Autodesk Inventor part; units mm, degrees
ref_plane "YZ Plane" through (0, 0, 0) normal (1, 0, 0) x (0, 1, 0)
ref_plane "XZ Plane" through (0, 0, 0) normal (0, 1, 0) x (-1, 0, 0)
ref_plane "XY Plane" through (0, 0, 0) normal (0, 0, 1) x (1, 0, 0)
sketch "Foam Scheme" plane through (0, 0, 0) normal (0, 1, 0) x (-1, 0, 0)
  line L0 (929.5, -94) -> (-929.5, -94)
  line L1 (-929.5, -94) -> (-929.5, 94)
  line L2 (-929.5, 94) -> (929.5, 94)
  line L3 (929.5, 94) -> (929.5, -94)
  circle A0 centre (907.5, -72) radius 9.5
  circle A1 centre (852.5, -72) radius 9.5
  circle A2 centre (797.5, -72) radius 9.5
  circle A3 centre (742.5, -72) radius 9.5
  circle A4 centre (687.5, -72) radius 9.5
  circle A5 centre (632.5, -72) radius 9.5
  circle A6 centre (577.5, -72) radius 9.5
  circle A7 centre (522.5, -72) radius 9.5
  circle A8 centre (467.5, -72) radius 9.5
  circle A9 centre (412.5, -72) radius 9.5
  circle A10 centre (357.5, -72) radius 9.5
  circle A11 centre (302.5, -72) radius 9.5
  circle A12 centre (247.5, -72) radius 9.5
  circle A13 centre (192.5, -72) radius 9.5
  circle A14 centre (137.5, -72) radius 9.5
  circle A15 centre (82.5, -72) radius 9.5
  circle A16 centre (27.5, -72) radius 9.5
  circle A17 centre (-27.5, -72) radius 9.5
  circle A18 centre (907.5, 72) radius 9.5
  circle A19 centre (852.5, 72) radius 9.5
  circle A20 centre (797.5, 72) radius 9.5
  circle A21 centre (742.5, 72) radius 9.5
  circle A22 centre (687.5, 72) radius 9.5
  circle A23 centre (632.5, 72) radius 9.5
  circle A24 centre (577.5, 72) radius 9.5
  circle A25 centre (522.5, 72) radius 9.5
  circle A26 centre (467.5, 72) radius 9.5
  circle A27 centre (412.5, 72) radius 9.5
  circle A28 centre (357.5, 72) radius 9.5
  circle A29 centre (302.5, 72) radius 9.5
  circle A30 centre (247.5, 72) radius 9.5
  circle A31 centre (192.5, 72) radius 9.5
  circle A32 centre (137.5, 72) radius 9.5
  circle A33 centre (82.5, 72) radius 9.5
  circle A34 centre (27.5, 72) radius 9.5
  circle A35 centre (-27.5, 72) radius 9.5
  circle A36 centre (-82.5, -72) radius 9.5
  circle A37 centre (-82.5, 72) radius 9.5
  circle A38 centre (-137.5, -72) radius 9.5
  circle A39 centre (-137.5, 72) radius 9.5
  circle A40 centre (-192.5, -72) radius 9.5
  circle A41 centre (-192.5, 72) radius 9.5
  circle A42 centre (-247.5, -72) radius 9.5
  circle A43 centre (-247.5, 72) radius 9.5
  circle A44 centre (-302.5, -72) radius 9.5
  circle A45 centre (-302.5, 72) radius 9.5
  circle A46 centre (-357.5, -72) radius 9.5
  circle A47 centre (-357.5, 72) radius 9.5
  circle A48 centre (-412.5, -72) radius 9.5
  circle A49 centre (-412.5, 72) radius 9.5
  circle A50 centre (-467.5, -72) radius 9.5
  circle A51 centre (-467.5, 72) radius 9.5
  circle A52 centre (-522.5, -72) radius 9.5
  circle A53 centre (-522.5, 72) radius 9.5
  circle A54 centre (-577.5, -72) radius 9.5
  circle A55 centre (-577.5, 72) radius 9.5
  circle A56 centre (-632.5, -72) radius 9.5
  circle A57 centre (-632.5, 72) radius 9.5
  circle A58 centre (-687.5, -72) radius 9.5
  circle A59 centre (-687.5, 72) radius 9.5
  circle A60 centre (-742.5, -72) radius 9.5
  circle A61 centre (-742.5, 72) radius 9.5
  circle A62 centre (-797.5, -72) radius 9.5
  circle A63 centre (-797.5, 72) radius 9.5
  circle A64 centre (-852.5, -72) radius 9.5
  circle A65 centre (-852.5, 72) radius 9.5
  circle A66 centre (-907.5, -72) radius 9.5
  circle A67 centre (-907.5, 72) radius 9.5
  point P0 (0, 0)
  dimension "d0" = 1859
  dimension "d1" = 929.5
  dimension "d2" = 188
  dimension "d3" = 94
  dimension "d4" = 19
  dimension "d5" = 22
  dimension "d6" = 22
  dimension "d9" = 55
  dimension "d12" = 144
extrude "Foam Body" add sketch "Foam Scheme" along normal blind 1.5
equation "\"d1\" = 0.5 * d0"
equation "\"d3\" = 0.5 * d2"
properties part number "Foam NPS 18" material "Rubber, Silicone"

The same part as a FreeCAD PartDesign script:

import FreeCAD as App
import Part
import Sketcher
Q = App.Units.Quantity

doc = App.newDocument("Part")
body = doc.addObject("PartDesign::Body", "Body")

# Sketch on XZ plane
sketch1 = body.newObject("Sketcher::SketchObject", "Sketch")
sketch1.AttachmentSupport = (doc.getObject("XZ_Plane"), [""])
sketch1.MapMode = "FlatFace"
sketch1.addGeometry([
    Part.LineSegment(App.Vector(929.5, -94, 0), App.Vector(-929.5, -94, 0)),  # 0
    Part.LineSegment(App.Vector(-929.5, -94, 0), App.Vector(-929.5, 94, 0)),  # 1
    Part.LineSegment(App.Vector(-929.5, 94, 0), App.Vector(929.5, 94, 0)),  # 2
    Part.LineSegment(App.Vector(929.5, 94, 0), App.Vector(929.5, -94, 0)),  # 3
    Part.Circle(App.Vector(907.5, -72, 0), App.Vector(0, 0, 1), 9.5),  # 4
    Part.Circle(App.Vector(852.5, -72, 0), App.Vector(0, 0, 1), 9.5),  # 5
    Part.Circle(App.Vector(797.5, -72, 0), App.Vector(0, 0, 1), 9.5),  # 6
    Part.Circle(App.Vector(742.5, -72, 0), App.Vector(0, 0, 1), 9.5),  # 7
    Part.Circle(App.Vector(687.5, -72, 0), App.Vector(0, 0, 1), 9.5),  # 8
    Part.Circle(App.Vector(632.5, -72, 0), App.Vector(0, 0, 1), 9.5),  # 9
    Part.Circle(App.Vector(577.5, -72, 0), App.Vector(0, 0, 1), 9.5),  # 10
    Part.Circle(App.Vector(522.5, -72, 0), App.Vector(0, 0, 1), 9.5),  # 11
    Part.Circle(App.Vector(467.5, -72, 0), App.Vector(0, 0, 1), 9.5),  # 12
    Part.Circle(App.Vector(412.5, -72, 0), App.Vector(0, 0, 1), 9.5),  # 13
    Part.Circle(App.Vector(357.5, -72, 0), App.Vector(0, 0, 1), 9.5),  # 14
    Part.Circle(App.Vector(302.5, -72, 0), App.Vector(0, 0, 1), 9.5),  # 15
    Part.Circle(App.Vector(247.5, -72, 0), App.Vector(0, 0, 1), 9.5),  # 16
    Part.Circle(App.Vector(192.5, -72, 0), App.Vector(0, 0, 1), 9.5),  # 17
    Part.Circle(App.Vector(137.5, -72, 0), App.Vector(0, 0, 1), 9.5),  # 18
    Part.Circle(App.Vector(82.5, -72, 0), App.Vector(0, 0, 1), 9.5),  # 19
    Part.Circle(App.Vector(27.5, -72, 0), App.Vector(0, 0, 1), 9.5),  # 20
    Part.Circle(App.Vector(-27.5, -72, 0), App.Vector(0, 0, 1), 9.5),  # 21
    Part.Circle(App.Vector(-82.5, -72, 0), App.Vector(0, 0, 1), 9.5),  # 22
    Part.Circle(App.Vector(-137.5, -72, 0), App.Vector(0, 0, 1), 9.5),  # 23
    Part.Circle(App.Vector(-192.5, -72, 0), App.Vector(0, 0, 1), 9.5),  # 24
    Part.Circle(App.Vector(-247.5, -72, 0), App.Vector(0, 0, 1), 9.5),  # 25
    Part.Circle(App.Vector(-302.5, -72, 0), App.Vector(0, 0, 1), 9.5),  # 26
    Part.Circle(App.Vector(-357.5, -72, 0), App.Vector(0, 0, 1), 9.5),  # 27
    Part.Circle(App.Vector(-412.5, -72, 0), App.Vector(0, 0, 1), 9.5),  # 28
    Part.Circle(App.Vector(-467.5, -72, 0), App.Vector(0, 0, 1), 9.5),  # 29
    Part.Circle(App.Vector(-522.5, -72, 0), App.Vector(0, 0, 1), 9.5),  # 30
    Part.Circle(App.Vector(-577.5, -72, 0), App.Vector(0, 0, 1), 9.5),  # 31
    Part.Circle(App.Vector(-632.5, -72, 0), App.Vector(0, 0, 1), 9.5),  # 32
    Part.Circle(App.Vector(-687.5, -72, 0), App.Vector(0, 0, 1), 9.5),  # 33
    Part.Circle(App.Vector(-742.5, -72, 0), App.Vector(0, 0, 1), 9.5),  # 34
    Part.Circle(App.Vector(-797.5, -72, 0), App.Vector(0, 0, 1), 9.5),  # 35
    Part.Circle(App.Vector(-852.5, -72, 0), App.Vector(0, 0, 1), 9.5),  # 36
    Part.Circle(App.Vector(-907.5, -72, 0), App.Vector(0, 0, 1), 9.5),  # 37
    Part.Circle(App.Vector(907.5, 72, 0), App.Vector(0, 0, 1), 9.5),  # 38
    Part.Circle(App.Vector(852.5, 72, 0), App.Vector(0, 0, 1), 9.5),  # 39
    Part.Circle(App.Vector(797.5, 72, 0), App.Vector(0, 0, 1), 9.5),  # 40
    Part.Circle(App.Vector(742.5, 72, 0), App.Vector(0, 0, 1), 9.5),  # 41
    Part.Circle(App.Vector(687.5, 72, 0), App.Vector(0, 0, 1), 9.5),  # 42
    Part.Circle(App.Vector(632.5, 72, 0), App.Vector(0, 0, 1), 9.5),  # 43
    Part.Circle(App.Vector(577.5, 72, 0), App.Vector(0, 0, 1), 9.5),  # 44
    Part.Circle(App.Vector(522.5, 72, 0), App.Vector(0, 0, 1), 9.5),  # 45
    Part.Circle(App.Vector(467.5, 72, 0), App.Vector(0, 0, 1), 9.5),  # 46
    Part.Circle(App.Vector(412.5, 72, 0), App.Vector(0, 0, 1), 9.5),  # 47
    Part.Circle(App.Vector(357.5, 72, 0), App.Vector(0, 0, 1), 9.5),  # 48
    Part.Circle(App.Vector(302.5, 72, 0), App.Vector(0, 0, 1), 9.5),  # 49
    Part.Circle(App.Vector(247.5, 72, 0), App.Vector(0, 0, 1), 9.5),  # 50
    Part.Circle(App.Vector(192.5, 72, 0), App.Vector(0, 0, 1), 9.5),  # 51
    Part.Circle(App.Vector(137.5, 72, 0), App.Vector(0, 0, 1), 9.5),  # 52
    Part.Circle(App.Vector(82.5, 72, 0), App.Vector(0, 0, 1), 9.5),  # 53
    Part.Circle(App.Vector(27.5, 72, 0), App.Vector(0, 0, 1), 9.5),  # 54
    Part.Circle(App.Vector(-27.5, 72, 0), App.Vector(0, 0, 1), 9.5),  # 55
    Part.Circle(App.Vector(-82.5, 72, 0), App.Vector(0, 0, 1), 9.5),  # 56
    Part.Circle(App.Vector(-137.5, 72, 0), App.Vector(0, 0, 1), 9.5),  # 57
    Part.Circle(App.Vector(-192.5, 72, 0), App.Vector(0, 0, 1), 9.5),  # 58
    Part.Circle(App.Vector(-247.5, 72, 0), App.Vector(0, 0, 1), 9.5),  # 59
    Part.Circle(App.Vector(-302.5, 72, 0), App.Vector(0, 0, 1), 9.5),  # 60
    Part.Circle(App.Vector(-357.5, 72, 0), App.Vector(0, 0, 1), 9.5),  # 61
    Part.Circle(App.Vector(-412.5, 72, 0), App.Vector(0, 0, 1), 9.5),  # 62
    Part.Circle(App.Vector(-467.5, 72, 0), App.Vector(0, 0, 1), 9.5),  # 63
    Part.Circle(App.Vector(-522.5, 72, 0), App.Vector(0, 0, 1), 9.5),  # 64
    Part.Circle(App.Vector(-577.5, 72, 0), App.Vector(0, 0, 1), 9.5),  # 65
    Part.Circle(App.Vector(-632.5, 72, 0), App.Vector(0, 0, 1), 9.5),  # 66
    Part.Circle(App.Vector(-687.5, 72, 0), App.Vector(0, 0, 1), 9.5),  # 67
    Part.Circle(App.Vector(-742.5, 72, 0), App.Vector(0, 0, 1), 9.5),  # 68
    Part.Circle(App.Vector(-797.5, 72, 0), App.Vector(0, 0, 1), 9.5),  # 69
    Part.Circle(App.Vector(-852.5, 72, 0), App.Vector(0, 0, 1), 9.5),  # 70
    Part.Circle(App.Vector(-907.5, 72, 0), App.Vector(0, 0, 1), 9.5),  # 71
], False)
sketch1.addConstraint([
    Sketcher.Constraint("Coincident", 0, 2, 1, 1),
    Sketcher.Constraint("Coincident", 1, 2, 2, 1),
    Sketcher.Constraint("Coincident", 2, 2, 3, 1),
    Sketcher.Constraint("Coincident", 3, 2, 0, 1),
    Sketcher.Constraint("Horizontal", 0),
    Sketcher.Constraint("Vertical", 1),
    Sketcher.Constraint("Horizontal", 2),
    Sketcher.Constraint("Vertical", 3),
    Sketcher.Constraint("Equal", 4, 5),
    Sketcher.Constraint("Equal", 5, 6),
    Sketcher.Constraint("Equal", 6, 7),
    Sketcher.Constraint("Equal", 7, 8),
    Sketcher.Constraint("Equal", 8, 9),
    Sketcher.Constraint("Equal", 9, 10),
    Sketcher.Constraint("Equal", 10, 11),
    Sketcher.Constraint("Equal", 11, 12),
    Sketcher.Constraint("Equal", 12, 13),
    Sketcher.Constraint("Equal", 13, 14),
    Sketcher.Constraint("Equal", 14, 15),
    Sketcher.Constraint("Equal", 15, 16),
    Sketcher.Constraint("Equal", 16, 17),
    Sketcher.Constraint("Equal", 17, 18),
    Sketcher.Constraint("Equal", 18, 19),
    Sketcher.Constraint("Equal", 19, 20),
    Sketcher.Constraint("Equal", 20, 21),
    Sketcher.Constraint("Equal", 21, 22),
    Sketcher.Constraint("Equal", 22, 23),
    Sketcher.Constraint("Equal", 23, 24),
    Sketcher.Constraint("Equal", 24, 25),
    Sketcher.Constraint("Equal", 25, 26),
    Sketcher.Constraint("Equal", 26, 27),
    Sketcher.Constraint("Equal", 27, 28),
    Sketcher.Constraint("Equal", 28, 29),
    Sketcher.Constraint("Equal", 29, 30),
    Sketcher.Constraint("Equal", 30, 31),
    Sketcher.Constraint("Equal", 31, 32),
    Sketcher.Constraint("Equal", 32, 33),
    Sketcher.Constraint("Equal", 33, 34),
    Sketcher.Constraint("Equal", 34, 35),
    Sketcher.Constraint("Equal", 35, 36),
    Sketcher.Constraint("Equal", 36, 37),
    Sketcher.Constraint("Equal", 37, 38),
    Sketcher.Constraint("Equal", 38, 39),
    Sketcher.Constraint("Equal", 39, 40),
    Sketcher.Constraint("Equal", 40, 41),
    Sketcher.Constraint("Equal", 41, 42),
    Sketcher.Constraint("Equal", 42, 43),
    Sketcher.Constraint("Equal", 43, 44),
    Sketcher.Constraint("Equal", 44, 45),
    Sketcher.Constraint("Equal", 45, 46),
    Sketcher.Constraint("Equal", 46, 47),
    Sketcher.Constraint("Equal", 47, 48),
    Sketcher.Constraint("Equal", 48, 49),
    Sketcher.Constraint("Equal", 49, 50),
    Sketcher.Constraint("Equal", 50, 51),
    Sketcher.Constraint("Equal", 51, 52),
    Sketcher.Constraint("Equal", 52, 53),
    Sketcher.Constraint("Equal", 53, 54),
    Sketcher.Constraint("Equal", 54, 55),
    Sketcher.Constraint("Equal", 55, 56),
    Sketcher.Constraint("Equal", 56, 57),
    Sketcher.Constraint("Equal", 57, 58),
    Sketcher.Constraint("Equal", 58, 59),
    Sketcher.Constraint("Equal", 59, 60),
    Sketcher.Constraint("Equal", 60, 61),
    Sketcher.Constraint("Equal", 61, 62),
    Sketcher.Constraint("Equal", 62, 63),
    Sketcher.Constraint("Equal", 63, 64),
    Sketcher.Constraint("Equal", 64, 65),
    Sketcher.Constraint("Equal", 65, 66),
    Sketcher.Constraint("Equal", 66, 67),
    Sketcher.Constraint("Equal", 67, 68),
    Sketcher.Constraint("Equal", 68, 69),
    Sketcher.Constraint("Equal", 69, 70),
    Sketcher.Constraint("Equal", 70, 71),
    Sketcher.Constraint("Symmetric", 37, 3, 38, 3, -1, 1),
    Sketcher.Constraint("Symmetric", 36, 3, 39, 3, -1, 1),
    Sketcher.Constraint("Symmetric", 35, 3, 40, 3, -1, 1),
    Sketcher.Constraint("Symmetric", 34, 3, 41, 3, -1, 1),
    Sketcher.Constraint("Symmetric", 33, 3, 42, 3, -1, 1),
    Sketcher.Constraint("Symmetric", 32, 3, 43, 3, -1, 1),
    Sketcher.Constraint("Symmetric", 31, 3, 44, 3, -1, 1),
    Sketcher.Constraint("Symmetric", 30, 3, 45, 3, -1, 1),
    Sketcher.Constraint("Symmetric", 29, 3, 46, 3, -1, 1),
    Sketcher.Constraint("Symmetric", 28, 3, 47, 3, -1, 1),
    Sketcher.Constraint("Symmetric", 27, 3, 48, 3, -1, 1),
    Sketcher.Constraint("Symmetric", 26, 3, 49, 3, -1, 1),
    Sketcher.Constraint("Symmetric", 25, 3, 50, 3, -1, 1),
    Sketcher.Constraint("Symmetric", 24, 3, 51, 3, -1, 1),
    Sketcher.Constraint("Symmetric", 23, 3, 52, 3, -1, 1),
    Sketcher.Constraint("Symmetric", 22, 3, 53, 3, -1, 1),
    Sketcher.Constraint("Symmetric", 21, 3, 54, 3, -1, 1),
    Sketcher.Constraint("Symmetric", 20, 3, 55, 3, -1, 1),
    Sketcher.Constraint("Symmetric", 19, 3, 56, 3, -1, 1),
    Sketcher.Constraint("Symmetric", 18, 3, 57, 3, -1, 1),
    Sketcher.Constraint("Symmetric", 17, 3, 58, 3, -1, 1),
    Sketcher.Constraint("Symmetric", 16, 3, 59, 3, -1, 1),
    Sketcher.Constraint("Symmetric", 15, 3, 60, 3, -1, 1),
    Sketcher.Constraint("Symmetric", 14, 3, 61, 3, -1, 1),
    Sketcher.Constraint("Symmetric", 13, 3, 62, 3, -1, 1),
    Sketcher.Constraint("Symmetric", 12, 3, 63, 3, -1, 1),
    Sketcher.Constraint("Symmetric", 11, 3, 64, 3, -1, 1),
    Sketcher.Constraint("Symmetric", 10, 3, 65, 3, -1, 1),
    Sketcher.Constraint("Symmetric", 9, 3, 66, 3, -1, 1),
    Sketcher.Constraint("Symmetric", 8, 3, 67, 3, -1, 1),
    Sketcher.Constraint("Symmetric", 7, 3, 68, 3, -1, 1),
    Sketcher.Constraint("Symmetric", 6, 3, 69, 3, -1, 1),
    Sketcher.Constraint("Symmetric", 5, 3, 70, 3, -1, 1),
    Sketcher.Constraint("Symmetric", 4, 3, 71, 3, -1, 1),
    Sketcher.Constraint("Symmetric", 0, 2, 2, 2, -1, 1),
    Sketcher.Constraint("Symmetric", 20, 3, 21, 3, -2),
    Sketcher.Constraint("Symmetric", 19, 3, 22, 3, -2),
    Sketcher.Constraint("Symmetric", 18, 3, 23, 3, -2),
    Sketcher.Constraint("Symmetric", 17, 3, 24, 3, -2),
    Sketcher.Constraint("Symmetric", 16, 3, 25, 3, -2),
    Sketcher.Constraint("Symmetric", 15, 3, 26, 3, -2),
    Sketcher.Constraint("Symmetric", 14, 3, 27, 3, -2),
    Sketcher.Constraint("Symmetric", 13, 3, 28, 3, -2),
    Sketcher.Constraint("Symmetric", 12, 3, 29, 3, -2),
    Sketcher.Constraint("Symmetric", 11, 3, 30, 3, -2),
    Sketcher.Constraint("Symmetric", 10, 3, 31, 3, -2),
    Sketcher.Constraint("Symmetric", 9, 3, 32, 3, -2),
    Sketcher.Constraint("Symmetric", 8, 3, 33, 3, -2),
    Sketcher.Constraint("Symmetric", 7, 3, 34, 3, -2),
    Sketcher.Constraint("Symmetric", 6, 3, 35, 3, -2),
    Sketcher.Constraint("Symmetric", 5, 3, 36, 3, -2),
    Sketcher.Constraint("Symmetric", 4, 3, 37, 3, -2),
    Sketcher.Constraint("Horizontal", 4, 3, 5, 3),
    Sketcher.Constraint("Horizontal", 5, 3, 6, 3),
    Sketcher.Constraint("Horizontal", 6, 3, 7, 3),
    Sketcher.Constraint("Horizontal", 7, 3, 8, 3),
    Sketcher.Constraint("Horizontal", 8, 3, 9, 3),
    Sketcher.Constraint("Horizontal", 9, 3, 10, 3),
    Sketcher.Constraint("Horizontal", 10, 3, 11, 3),
    Sketcher.Constraint("Horizontal", 11, 3, 12, 3),
    Sketcher.Constraint("Horizontal", 12, 3, 13, 3),
    Sketcher.Constraint("Horizontal", 13, 3, 14, 3),
    Sketcher.Constraint("Horizontal", 14, 3, 15, 3),
    Sketcher.Constraint("Horizontal", 15, 3, 16, 3),
    Sketcher.Constraint("Horizontal", 16, 3, 17, 3),
    Sketcher.Constraint("Horizontal", 17, 3, 18, 3),
    Sketcher.Constraint("Horizontal", 18, 3, 19, 3),
    Sketcher.Constraint("Horizontal", 19, 3, 20, 3),
    Sketcher.Constraint("Diameter", 4, Q("19 mm")),
    Sketcher.Constraint("DistanceX", 0, 2, 0, 1, Q("1859 mm")),
    Sketcher.Constraint("DistanceY", 1, 1, 1, 2, Q("188 mm")),
    Sketcher.Constraint("DistanceY", 4, 3, -1, 1, Q("72 mm")),
    Sketcher.Constraint("DistanceX", -1, 1, 4, 3, Q("907.5 mm")),
    Sketcher.Constraint("DistanceX", -1, 1, 5, 3, Q("852.5 mm")),
    Sketcher.Constraint("DistanceX", -1, 1, 6, 3, Q("797.5 mm")),
    Sketcher.Constraint("DistanceX", -1, 1, 7, 3, Q("742.5 mm")),
    Sketcher.Constraint("DistanceX", -1, 1, 8, 3, Q("687.5 mm")),
    Sketcher.Constraint("DistanceX", -1, 1, 9, 3, Q("632.5 mm")),
    Sketcher.Constraint("DistanceX", -1, 1, 10, 3, Q("577.5 mm")),
    Sketcher.Constraint("DistanceX", -1, 1, 11, 3, Q("522.5 mm")),
    Sketcher.Constraint("DistanceX", -1, 1, 12, 3, Q("467.5 mm")),
    Sketcher.Constraint("DistanceX", -1, 1, 13, 3, Q("412.5 mm")),
    Sketcher.Constraint("DistanceX", -1, 1, 14, 3, Q("357.5 mm")),
    Sketcher.Constraint("DistanceX", -1, 1, 15, 3, Q("302.5 mm")),
    Sketcher.Constraint("DistanceX", -1, 1, 16, 3, Q("247.5 mm")),
    Sketcher.Constraint("DistanceX", -1, 1, 17, 3, Q("192.5 mm")),
    Sketcher.Constraint("DistanceX", -1, 1, 18, 3, Q("137.5 mm")),
    Sketcher.Constraint("DistanceX", -1, 1, 19, 3, Q("82.5 mm")),
    Sketcher.Constraint("DistanceX", -1, 1, 20, 3, Q("27.5 mm")),
])
pad1 = body.newObject("PartDesign::Pad", "Pad")
pad1.Profile = sketch1
pad1.Length = 1.5
pad1.Reversed = True

doc.recompute()
